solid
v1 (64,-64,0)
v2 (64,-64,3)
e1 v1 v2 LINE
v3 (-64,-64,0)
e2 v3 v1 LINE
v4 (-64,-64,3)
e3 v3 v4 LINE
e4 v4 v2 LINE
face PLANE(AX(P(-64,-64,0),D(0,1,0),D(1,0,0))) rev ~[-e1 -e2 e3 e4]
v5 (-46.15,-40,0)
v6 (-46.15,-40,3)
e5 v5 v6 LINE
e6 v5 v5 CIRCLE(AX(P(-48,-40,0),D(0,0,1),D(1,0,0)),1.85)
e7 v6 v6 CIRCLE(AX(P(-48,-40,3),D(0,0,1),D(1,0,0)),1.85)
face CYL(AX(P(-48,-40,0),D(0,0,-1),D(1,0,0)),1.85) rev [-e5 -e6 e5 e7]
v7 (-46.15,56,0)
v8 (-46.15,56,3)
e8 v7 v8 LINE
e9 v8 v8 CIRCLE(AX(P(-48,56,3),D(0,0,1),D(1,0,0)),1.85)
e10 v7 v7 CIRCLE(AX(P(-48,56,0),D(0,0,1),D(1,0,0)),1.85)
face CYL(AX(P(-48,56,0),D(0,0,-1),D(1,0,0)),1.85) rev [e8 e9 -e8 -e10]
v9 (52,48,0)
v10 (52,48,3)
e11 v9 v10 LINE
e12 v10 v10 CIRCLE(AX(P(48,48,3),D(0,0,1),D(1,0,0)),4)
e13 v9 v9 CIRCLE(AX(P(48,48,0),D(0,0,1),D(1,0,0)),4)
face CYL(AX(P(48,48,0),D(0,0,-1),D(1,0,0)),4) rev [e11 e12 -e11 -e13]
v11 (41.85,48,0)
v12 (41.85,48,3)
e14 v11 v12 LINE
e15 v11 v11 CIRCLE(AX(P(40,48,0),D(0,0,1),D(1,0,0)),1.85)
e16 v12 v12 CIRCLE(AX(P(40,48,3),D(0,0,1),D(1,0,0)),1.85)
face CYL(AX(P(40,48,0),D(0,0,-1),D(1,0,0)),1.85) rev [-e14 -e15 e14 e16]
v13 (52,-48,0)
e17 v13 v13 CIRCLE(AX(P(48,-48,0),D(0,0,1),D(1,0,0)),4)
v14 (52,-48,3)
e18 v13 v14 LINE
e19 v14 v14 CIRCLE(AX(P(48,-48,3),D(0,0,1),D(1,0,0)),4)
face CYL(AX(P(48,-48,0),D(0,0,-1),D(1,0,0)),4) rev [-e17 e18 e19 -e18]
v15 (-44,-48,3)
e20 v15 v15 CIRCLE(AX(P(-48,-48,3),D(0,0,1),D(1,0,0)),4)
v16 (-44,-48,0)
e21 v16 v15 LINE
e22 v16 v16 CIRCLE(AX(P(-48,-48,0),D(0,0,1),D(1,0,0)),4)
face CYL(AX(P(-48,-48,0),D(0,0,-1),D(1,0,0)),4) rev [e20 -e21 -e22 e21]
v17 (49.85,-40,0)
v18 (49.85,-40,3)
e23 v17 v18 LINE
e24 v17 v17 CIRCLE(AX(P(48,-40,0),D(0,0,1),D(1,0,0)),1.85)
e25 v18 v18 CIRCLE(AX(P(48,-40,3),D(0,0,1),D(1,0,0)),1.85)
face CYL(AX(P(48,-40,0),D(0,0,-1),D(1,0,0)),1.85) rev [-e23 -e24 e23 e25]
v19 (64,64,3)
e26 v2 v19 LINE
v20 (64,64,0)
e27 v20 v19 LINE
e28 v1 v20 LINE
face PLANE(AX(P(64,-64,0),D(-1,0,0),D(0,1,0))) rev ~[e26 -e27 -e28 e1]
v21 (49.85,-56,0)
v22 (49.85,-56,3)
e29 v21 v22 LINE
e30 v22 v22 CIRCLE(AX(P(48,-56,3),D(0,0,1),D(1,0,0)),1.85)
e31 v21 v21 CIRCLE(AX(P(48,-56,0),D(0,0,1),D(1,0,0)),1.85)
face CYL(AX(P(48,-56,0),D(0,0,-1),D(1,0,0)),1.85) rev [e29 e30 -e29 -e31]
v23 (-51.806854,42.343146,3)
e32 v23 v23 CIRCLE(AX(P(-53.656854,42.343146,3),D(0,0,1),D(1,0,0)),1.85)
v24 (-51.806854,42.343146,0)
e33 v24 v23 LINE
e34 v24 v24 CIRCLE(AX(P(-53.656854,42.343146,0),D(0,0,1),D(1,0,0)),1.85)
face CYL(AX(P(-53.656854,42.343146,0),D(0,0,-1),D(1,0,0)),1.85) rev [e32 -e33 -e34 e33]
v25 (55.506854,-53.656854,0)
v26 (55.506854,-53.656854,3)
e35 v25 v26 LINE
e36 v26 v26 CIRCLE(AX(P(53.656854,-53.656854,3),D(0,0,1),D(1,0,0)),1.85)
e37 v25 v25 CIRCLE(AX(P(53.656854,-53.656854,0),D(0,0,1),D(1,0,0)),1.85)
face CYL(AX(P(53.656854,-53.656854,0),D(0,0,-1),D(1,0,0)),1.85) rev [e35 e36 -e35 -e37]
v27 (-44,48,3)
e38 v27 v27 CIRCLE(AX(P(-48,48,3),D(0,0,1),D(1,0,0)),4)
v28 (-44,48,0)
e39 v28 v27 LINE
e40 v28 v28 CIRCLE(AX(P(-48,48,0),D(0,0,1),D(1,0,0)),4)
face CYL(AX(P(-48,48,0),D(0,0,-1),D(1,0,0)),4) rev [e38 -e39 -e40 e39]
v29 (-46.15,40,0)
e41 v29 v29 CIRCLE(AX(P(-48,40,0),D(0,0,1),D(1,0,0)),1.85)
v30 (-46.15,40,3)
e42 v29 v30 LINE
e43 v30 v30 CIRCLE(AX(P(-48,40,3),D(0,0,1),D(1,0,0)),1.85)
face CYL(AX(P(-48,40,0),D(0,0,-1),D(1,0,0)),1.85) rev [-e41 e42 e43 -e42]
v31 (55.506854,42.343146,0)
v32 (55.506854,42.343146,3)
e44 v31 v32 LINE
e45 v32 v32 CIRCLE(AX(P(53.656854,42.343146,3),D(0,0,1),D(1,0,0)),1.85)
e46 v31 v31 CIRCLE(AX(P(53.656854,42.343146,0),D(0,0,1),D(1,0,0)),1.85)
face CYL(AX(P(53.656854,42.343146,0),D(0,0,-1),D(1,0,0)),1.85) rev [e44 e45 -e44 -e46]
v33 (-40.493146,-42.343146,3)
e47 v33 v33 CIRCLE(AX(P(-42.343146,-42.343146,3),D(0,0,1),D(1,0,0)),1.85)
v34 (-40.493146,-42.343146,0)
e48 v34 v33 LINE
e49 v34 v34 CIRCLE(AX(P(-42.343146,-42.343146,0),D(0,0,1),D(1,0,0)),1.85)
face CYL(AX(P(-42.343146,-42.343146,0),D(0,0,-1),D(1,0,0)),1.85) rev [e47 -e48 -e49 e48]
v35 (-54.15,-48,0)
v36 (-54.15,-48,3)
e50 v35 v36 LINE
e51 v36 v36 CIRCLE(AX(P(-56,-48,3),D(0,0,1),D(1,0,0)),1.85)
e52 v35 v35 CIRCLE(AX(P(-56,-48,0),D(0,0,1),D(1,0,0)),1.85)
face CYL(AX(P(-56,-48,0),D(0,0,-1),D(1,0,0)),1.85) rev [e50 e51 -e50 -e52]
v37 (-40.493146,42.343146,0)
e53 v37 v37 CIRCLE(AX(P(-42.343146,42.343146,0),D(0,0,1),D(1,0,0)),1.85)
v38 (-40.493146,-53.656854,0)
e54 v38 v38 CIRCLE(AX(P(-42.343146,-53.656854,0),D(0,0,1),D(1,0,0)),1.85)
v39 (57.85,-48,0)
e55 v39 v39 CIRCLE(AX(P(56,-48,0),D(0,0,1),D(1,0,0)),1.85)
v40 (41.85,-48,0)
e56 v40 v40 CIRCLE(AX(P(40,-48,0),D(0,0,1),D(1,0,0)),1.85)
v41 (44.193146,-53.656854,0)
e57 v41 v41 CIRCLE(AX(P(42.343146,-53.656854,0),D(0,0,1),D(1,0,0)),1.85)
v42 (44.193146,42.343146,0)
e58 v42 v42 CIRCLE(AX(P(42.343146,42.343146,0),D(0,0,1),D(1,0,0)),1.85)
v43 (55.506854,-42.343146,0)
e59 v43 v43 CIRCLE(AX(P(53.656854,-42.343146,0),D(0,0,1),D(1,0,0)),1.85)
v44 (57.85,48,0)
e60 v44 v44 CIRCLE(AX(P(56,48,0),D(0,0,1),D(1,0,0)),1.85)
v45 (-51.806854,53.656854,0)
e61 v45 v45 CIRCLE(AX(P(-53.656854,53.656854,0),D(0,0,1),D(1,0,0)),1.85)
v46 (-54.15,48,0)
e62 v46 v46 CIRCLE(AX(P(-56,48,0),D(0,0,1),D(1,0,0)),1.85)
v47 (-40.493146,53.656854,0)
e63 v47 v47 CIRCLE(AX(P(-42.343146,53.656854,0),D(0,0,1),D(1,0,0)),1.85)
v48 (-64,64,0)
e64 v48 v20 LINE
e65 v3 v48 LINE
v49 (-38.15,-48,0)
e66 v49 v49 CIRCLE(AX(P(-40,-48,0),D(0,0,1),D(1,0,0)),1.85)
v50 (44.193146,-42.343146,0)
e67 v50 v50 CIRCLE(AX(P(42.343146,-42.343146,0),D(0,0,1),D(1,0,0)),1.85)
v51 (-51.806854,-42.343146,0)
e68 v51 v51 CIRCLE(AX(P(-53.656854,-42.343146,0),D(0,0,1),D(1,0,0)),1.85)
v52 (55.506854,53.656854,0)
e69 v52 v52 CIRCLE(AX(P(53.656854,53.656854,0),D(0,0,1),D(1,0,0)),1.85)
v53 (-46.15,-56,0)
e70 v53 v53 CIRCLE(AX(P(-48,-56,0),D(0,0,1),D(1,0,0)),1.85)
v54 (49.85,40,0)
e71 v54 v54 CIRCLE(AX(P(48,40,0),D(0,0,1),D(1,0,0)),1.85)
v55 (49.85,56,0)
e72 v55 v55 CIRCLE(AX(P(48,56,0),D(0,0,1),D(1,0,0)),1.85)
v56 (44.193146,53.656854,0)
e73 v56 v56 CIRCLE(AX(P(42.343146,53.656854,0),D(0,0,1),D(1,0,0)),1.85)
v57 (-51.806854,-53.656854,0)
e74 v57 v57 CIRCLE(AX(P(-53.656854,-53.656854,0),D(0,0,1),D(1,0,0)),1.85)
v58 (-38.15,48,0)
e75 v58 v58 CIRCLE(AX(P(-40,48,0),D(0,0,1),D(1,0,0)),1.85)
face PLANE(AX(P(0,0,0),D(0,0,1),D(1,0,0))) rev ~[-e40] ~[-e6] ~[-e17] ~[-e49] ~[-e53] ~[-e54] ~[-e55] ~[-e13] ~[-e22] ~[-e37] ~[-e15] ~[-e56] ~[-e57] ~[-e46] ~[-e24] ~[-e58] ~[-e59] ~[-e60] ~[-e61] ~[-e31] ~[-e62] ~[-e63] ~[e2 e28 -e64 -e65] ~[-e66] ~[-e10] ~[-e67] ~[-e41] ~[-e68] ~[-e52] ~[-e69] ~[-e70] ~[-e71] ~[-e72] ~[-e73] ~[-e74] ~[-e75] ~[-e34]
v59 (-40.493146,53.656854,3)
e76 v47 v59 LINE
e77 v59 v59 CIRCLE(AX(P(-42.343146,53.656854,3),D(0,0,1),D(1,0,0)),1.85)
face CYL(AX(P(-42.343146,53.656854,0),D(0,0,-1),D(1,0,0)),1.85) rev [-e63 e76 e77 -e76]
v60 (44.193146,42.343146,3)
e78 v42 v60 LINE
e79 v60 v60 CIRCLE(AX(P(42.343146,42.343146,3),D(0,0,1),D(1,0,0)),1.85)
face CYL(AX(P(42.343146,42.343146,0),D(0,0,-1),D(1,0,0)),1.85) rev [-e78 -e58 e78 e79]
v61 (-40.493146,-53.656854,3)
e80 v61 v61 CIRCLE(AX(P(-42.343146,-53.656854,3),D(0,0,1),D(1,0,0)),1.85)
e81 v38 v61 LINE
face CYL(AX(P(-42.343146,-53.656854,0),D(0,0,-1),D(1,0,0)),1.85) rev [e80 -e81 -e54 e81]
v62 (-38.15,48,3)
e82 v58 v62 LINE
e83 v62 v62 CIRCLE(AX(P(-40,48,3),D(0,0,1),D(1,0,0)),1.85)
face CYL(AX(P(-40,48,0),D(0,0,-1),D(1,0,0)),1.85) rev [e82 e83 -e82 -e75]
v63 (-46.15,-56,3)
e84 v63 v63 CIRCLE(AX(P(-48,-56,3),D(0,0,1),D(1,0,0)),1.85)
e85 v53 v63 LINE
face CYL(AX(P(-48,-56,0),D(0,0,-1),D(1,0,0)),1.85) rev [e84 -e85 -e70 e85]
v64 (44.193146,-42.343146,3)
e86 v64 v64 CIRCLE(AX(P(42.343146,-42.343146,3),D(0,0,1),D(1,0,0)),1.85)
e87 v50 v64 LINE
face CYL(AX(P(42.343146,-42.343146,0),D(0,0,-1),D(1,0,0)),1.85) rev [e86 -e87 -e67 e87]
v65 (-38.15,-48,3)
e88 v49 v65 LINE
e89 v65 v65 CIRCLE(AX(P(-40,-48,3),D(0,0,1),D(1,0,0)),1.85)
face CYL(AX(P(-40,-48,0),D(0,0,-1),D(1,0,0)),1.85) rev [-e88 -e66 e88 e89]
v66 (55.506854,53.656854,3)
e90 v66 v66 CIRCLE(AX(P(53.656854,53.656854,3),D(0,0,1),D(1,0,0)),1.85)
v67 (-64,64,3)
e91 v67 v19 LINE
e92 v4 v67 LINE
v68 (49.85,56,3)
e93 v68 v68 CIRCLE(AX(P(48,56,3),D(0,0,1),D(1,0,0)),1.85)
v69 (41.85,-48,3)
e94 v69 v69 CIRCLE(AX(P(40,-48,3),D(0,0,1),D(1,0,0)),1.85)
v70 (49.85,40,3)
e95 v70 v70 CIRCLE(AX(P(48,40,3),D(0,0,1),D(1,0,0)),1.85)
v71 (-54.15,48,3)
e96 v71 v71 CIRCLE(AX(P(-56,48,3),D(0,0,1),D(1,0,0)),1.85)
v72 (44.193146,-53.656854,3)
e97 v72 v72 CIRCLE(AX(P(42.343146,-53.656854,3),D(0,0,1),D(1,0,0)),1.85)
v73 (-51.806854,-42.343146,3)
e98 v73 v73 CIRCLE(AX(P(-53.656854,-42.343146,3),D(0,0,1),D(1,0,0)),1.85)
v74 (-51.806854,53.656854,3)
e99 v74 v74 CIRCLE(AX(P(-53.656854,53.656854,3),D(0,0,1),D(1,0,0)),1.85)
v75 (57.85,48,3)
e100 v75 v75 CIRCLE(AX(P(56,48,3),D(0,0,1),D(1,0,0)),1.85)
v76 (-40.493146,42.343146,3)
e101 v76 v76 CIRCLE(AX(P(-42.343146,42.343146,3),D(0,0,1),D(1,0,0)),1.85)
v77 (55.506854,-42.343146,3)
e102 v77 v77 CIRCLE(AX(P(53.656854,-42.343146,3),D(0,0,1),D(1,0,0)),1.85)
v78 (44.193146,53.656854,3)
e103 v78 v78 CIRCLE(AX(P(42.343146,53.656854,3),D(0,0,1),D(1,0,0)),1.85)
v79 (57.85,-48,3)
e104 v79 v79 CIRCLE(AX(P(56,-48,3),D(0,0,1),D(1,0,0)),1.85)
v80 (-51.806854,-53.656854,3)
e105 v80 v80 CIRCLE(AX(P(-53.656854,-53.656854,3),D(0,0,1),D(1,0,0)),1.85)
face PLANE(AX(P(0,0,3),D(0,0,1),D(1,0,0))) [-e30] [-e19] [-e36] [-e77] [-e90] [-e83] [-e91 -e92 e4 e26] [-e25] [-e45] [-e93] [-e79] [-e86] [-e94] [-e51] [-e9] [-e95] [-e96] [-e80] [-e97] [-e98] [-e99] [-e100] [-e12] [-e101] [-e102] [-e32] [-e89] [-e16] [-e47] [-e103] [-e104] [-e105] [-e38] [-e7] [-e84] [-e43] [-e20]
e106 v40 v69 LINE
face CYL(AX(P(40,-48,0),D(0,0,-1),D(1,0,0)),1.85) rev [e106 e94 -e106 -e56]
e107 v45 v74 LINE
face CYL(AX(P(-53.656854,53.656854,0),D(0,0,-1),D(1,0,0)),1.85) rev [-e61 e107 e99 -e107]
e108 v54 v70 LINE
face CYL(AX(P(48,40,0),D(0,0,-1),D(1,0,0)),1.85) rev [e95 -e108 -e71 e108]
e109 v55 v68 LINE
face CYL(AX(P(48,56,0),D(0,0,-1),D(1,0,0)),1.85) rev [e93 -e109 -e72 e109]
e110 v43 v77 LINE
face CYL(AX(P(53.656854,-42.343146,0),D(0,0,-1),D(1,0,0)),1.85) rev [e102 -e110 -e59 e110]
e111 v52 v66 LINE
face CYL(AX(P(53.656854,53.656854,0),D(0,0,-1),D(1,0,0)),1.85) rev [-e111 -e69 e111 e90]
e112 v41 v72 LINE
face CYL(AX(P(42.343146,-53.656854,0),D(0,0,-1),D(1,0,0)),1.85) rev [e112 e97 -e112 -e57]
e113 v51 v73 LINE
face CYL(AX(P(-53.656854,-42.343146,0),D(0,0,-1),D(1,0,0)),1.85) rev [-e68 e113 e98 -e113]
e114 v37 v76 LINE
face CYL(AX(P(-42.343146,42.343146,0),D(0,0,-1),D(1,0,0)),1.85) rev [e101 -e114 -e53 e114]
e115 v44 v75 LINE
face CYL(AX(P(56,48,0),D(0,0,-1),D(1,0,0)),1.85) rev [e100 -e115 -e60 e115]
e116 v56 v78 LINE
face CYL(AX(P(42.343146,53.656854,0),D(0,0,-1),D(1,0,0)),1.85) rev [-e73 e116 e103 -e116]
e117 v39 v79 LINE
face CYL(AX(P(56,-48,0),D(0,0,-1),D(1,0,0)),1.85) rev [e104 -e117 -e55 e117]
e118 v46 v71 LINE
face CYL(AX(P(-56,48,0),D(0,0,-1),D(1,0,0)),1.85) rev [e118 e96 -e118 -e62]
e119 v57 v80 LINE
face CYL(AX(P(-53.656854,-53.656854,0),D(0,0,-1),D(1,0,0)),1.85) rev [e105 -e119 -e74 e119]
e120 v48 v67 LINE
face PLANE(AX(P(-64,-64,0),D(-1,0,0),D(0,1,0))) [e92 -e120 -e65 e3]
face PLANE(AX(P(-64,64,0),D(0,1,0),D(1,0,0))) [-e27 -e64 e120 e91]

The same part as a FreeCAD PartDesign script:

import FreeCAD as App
import Part
import Sketcher
from FreeCAD import Vector
Q = App.Units.Quantity


def add_polygon(sketch, points):
    """Adds a closed chain of lines whose ends are joined by coincident constraints."""
    first, n = sketch.GeometryCount, len(points)
    for a, b in zip(points, points[1:] + points[:1]):
        sketch.addGeometry(Part.LineSegment(App.Vector(*a, 0), App.Vector(*b, 0)), False)
    for i in range(n):
        sketch.addConstraint(Sketcher.Constraint("Coincident", first + i, 2, first + (i + 1) % n, 1))

doc = App.newDocument("Part")
body = doc.addObject("PartDesign::Body", "Body")

# Sketch on XY plane
sketch1 = body.newObject("Sketcher::SketchObject", "Sketch")
sketch1.AttachmentSupport = (doc.getObject("XY_Plane"), [""])
sketch1.MapMode = "FlatFace"
add_polygon(sketch1, [(-64, 64), (-64, -64), (64, -64), (64, 64)])  # lines 0-3
sketch1.addGeometry(Part.Circle(Vector(-53.7, -53.7, 0), Vector(0, 0, 1), 1.9), False)  # 4
sketch1.addGeometry(Part.Circle(Vector(-48, -56, 0), Vector(0, 0, 1), 1.9), False)  # 5
sketch1.addGeometry(Part.Circle(Vector(-56, -48, 0), Vector(0, 0, 1), 1.9), False)  # 6
sketch1.addGeometry(Part.Circle(Vector(-48, -48, 0), Vector(0, 0, 1), 4), False)  # 7
sketch1.addGeometry(Part.Circle(Vector(-42.3, -53.7, 0), Vector(0, 0, 1), 1.9), False)  # 8
sketch1.addGeometry(Part.Circle(Vector(-40, -48, 0), Vector(0, 0, 1), 1.9), False)  # 9
sketch1.addGeometry(Part.Circle(Vector(-53.7, -42.3, 0), Vector(0, 0, 1), 1.9), False)  # 10
sketch1.addGeometry(Part.Circle(Vector(-48, -40, 0), Vector(0, 0, 1), 1.9), False)  # 11
sketch1.addGeometry(Part.Circle(Vector(-42.3, -42.3, 0), Vector(0, 0, 1), 1.9), False)  # 12
sketch1.addGeometry(Part.Circle(Vector(42.3, -53.7, 0), Vector(0, 0, 1), 1.9), False)  # 13
sketch1.addGeometry(Part.Circle(Vector(40, -48, 0), Vector(0, 0, 1), 1.9), False)  # 14
sketch1.addGeometry(Part.Circle(Vector(48, -56, 0), Vector(0, 0, 1), 1.9), False)  # 15
sketch1.addGeometry(Part.Circle(Vector(53.7, -53.7, 0), Vector(0, 0, 1), 1.9), False)  # 16
sketch1.addGeometry(Part.Circle(Vector(48, -48, 0), Vector(0, 0, 1), 4), False)  # 17
sketch1.addGeometry(Part.Circle(Vector(56, -48, 0), Vector(0, 0, 1), 1.9), False)  # 18
sketch1.addGeometry(Part.Circle(Vector(42.3, -42.3, 0), Vector(0, 0, 1), 1.9), False)  # 19
sketch1.addGeometry(Part.Circle(Vector(48, -40, 0), Vector(0, 0, 1), 1.9), False)  # 20
sketch1.addGeometry(Part.Circle(Vector(53.7, -42.3, 0), Vector(0, 0, 1), 1.9), False)  # 21
sketch1.addGeometry(Part.Circle(Vector(-53.7, 42.3, 0), Vector(0, 0, 1), 1.9), False)  # 22
sketch1.addGeometry(Part.Circle(Vector(-48, 40, 0), Vector(0, 0, 1), 1.9), False)  # 23
sketch1.addGeometry(Part.Circle(Vector(-42.3, 42.3, 0), Vector(0, 0, 1), 1.9), False)  # 24
sketch1.addGeometry(Part.Circle(Vector(-56, 48, 0), Vector(0, 0, 1), 1.9), False)  # 25
sketch1.addGeometry(Part.Circle(Vector(-48, 48, 0), Vector(0, 0, 1), 4), False)  # 26
sketch1.addGeometry(Part.Circle(Vector(-53.7, 53.7, 0), Vector(0, 0, 1), 1.9), False)  # 27
sketch1.addGeometry(Part.Circle(Vector(-48, 56, 0), Vector(0, 0, 1), 1.9), False)  # 28
sketch1.addGeometry(Part.Circle(Vector(-40, 48, 0), Vector(0, 0, 1), 1.9), False)  # 29
sketch1.addGeometry(Part.Circle(Vector(-42.3, 53.7, 0), Vector(0, 0, 1), 1.9), False)  # 30
sketch1.addGeometry(Part.Circle(Vector(42.3, 42.3, 0), Vector(0, 0, 1), 1.9), False)  # 31
sketch1.addGeometry(Part.Circle(Vector(48, 40, 0), Vector(0, 0, 1), 1.9), False)  # 32
sketch1.addGeometry(Part.Circle(Vector(53.7, 42.3, 0), Vector(0, 0, 1), 1.9), False)  # 33
sketch1.addGeometry(Part.Circle(Vector(40, 48, 0), Vector(0, 0, 1), 1.9), False)  # 34
sketch1.addGeometry(Part.Circle(Vector(42.3, 53.7, 0), Vector(0, 0, 1), 1.9), False)  # 35
sketch1.addGeometry(Part.Circle(Vector(48, 48, 0), Vector(0, 0, 1), 4), False)  # 36
sketch1.addGeometry(Part.Circle(Vector(56, 48, 0), Vector(0, 0, 1), 1.9), False)  # 37
sketch1.addGeometry(Part.Circle(Vector(48, 56, 0), Vector(0, 0, 1), 1.9), False)  # 38
sketch1.addGeometry(Part.Circle(Vector(53.7, 53.7, 0), Vector(0, 0, 1), 1.9), False)  # 39
sketch1.addConstraint(Sketcher.Constraint("Vertical", 0))
sketch1.addConstraint(Sketcher.Constraint("Horizontal", 1))
sketch1.addConstraint(Sketcher.Constraint("Vertical", 2))
sketch1.addConstraint(Sketcher.Constraint("Horizontal", 3))
sketch1.addConstraint(Sketcher.Constraint("Equal", 4, 5))
sketch1.addConstraint(Sketcher.Constraint("Equal", 5, 6))
sketch1.addConstraint(Sketcher.Constraint("Equal", 6, 8))
sketch1.addConstraint(Sketcher.Constraint("Equal", 8, 9))
sketch1.addConstraint(Sketcher.Constraint("Equal", 9, 10))
sketch1.addConstraint(Sketcher.Constraint("Equal", 10, 11))
sketch1.addConstraint(Sketcher.Constraint("Equal", 11, 12))
sketch1.addConstraint(Sketcher.Constraint("Equal", 12, 13))
sketch1.addConstraint(Sketcher.Constraint("Equal", 13, 14))
sketch1.addConstraint(Sketcher.Constraint("Equal", 14, 15))
sketch1.addConstraint(Sketcher.Constraint("Equal", 15, 16))
sketch1.addConstraint(Sketcher.Constraint("Equal", 7, 17))
sketch1.addConstraint(Sketcher.Constraint("Equal", 16, 18))
sketch1.addConstraint(Sketcher.Constraint("Equal", 18, 19))
sketch1.addConstraint(Sketcher.Constraint("Equal", 19, 20))
sketch1.addConstraint(Sketcher.Constraint("Equal", 20, 21))
sketch1.addConstraint(Sketcher.Constraint("Equal", 21, 22))
sketch1.addConstraint(Sketcher.Constraint("Equal", 22, 23))
sketch1.addConstraint(Sketcher.Constraint("Equal", 23, 24))
sketch1.addConstraint(Sketcher.Constraint("Equal", 24, 25))
sketch1.addConstraint(Sketcher.Constraint("Equal", 17, 26))
sketch1.addConstraint(Sketcher.Constraint("Equal", 25, 27))
sketch1.addConstraint(Sketcher.Constraint("Equal", 27, 28))
sketch1.addConstraint(Sketcher.Constraint("Equal", 28, 29))
sketch1.addConstraint(Sketcher.Constraint("Equal", 29, 30))
sketch1.addConstraint(Sketcher.Constraint("Equal", 30, 31))
sketch1.addConstraint(Sketcher.Constraint("Equal", 31, 32))
sketch1.addConstraint(Sketcher.Constraint("Equal", 32, 33))
sketch1.addConstraint(Sketcher.Constraint("Equal", 33, 34))
sketch1.addConstraint(Sketcher.Constraint("Equal", 34, 35))
sketch1.addConstraint(Sketcher.Constraint("Equal", 26, 36))
sketch1.addConstraint(Sketcher.Constraint("Equal", 35, 37))
sketch1.addConstraint(Sketcher.Constraint("Equal", 37, 38))
sketch1.addConstraint(Sketcher.Constraint("Equal", 38, 39))
sketch1.addConstraint(Sketcher.Constraint("Symmetric", 21, 3, 22, 3, -1, 1))
sketch1.addConstraint(Sketcher.Constraint("Symmetric", 20, 3, 23, 3, -1, 1))
sketch1.addConstraint(Sketcher.Constraint("Symmetric", 19, 3, 24, 3, -1, 1))
sketch1.addConstraint(Sketcher.Constraint("Symmetric", 18, 3, 25, 3, -1, 1))
sketch1.addConstraint(Sketcher.Constraint("Symmetric", 17, 3, 26, 3, -1, 1))
sketch1.addConstraint(Sketcher.Constraint("Symmetric", 16, 3, 27, 3, -1, 1))
sketch1.addConstraint(Sketcher.Constraint("Symmetric", 15, 3, 28, 3, -1, 1))
sketch1.addConstraint(Sketcher.Constraint("Symmetric", 14, 3, 29, 3, -1, 1))
sketch1.addConstraint(Sketcher.Constraint("Symmetric", 13, 3, 30, 3, -1, 1))
sketch1.addConstraint(Sketcher.Constraint("Symmetric", 12, 3, 31, 3, -1, 1))
sketch1.addConstraint(Sketcher.Constraint("Symmetric", 11, 3, 32, 3, -1, 1))
sketch1.addConstraint(Sketcher.Constraint("Symmetric", 10, 3, 33, 3, -1, 1))
sketch1.addConstraint(Sketcher.Constraint("Symmetric", 9, 3, 34, 3, -1, 1))
sketch1.addConstraint(Sketcher.Constraint("Symmetric", 8, 3, 35, 3, -1, 1))
sketch1.addConstraint(Sketcher.Constraint("Symmetric", 7, 3, 36, 3, -1, 1))
sketch1.addConstraint(Sketcher.Constraint("Symmetric", 6, 3, 37, 3, -1, 1))
sketch1.addConstraint(Sketcher.Constraint("Symmetric", 5, 3, 38, 3, -1, 1))
sketch1.addConstraint(Sketcher.Constraint("Symmetric", 4, 3, 39, 3, -1, 1))
sketch1.addConstraint(Sketcher.Constraint("Symmetric", 0, 2, 2, 2, -1, 1))
sketch1.addConstraint(Sketcher.Constraint("Symmetric", 8, 3, 13, 3, -2))
sketch1.addConstraint(Sketcher.Constraint("Symmetric", 9, 3, 14, 3, -2))
sketch1.addConstraint(Sketcher.Constraint("Symmetric", 5, 3, 15, 3, -2))
sketch1.addConstraint(Sketcher.Constraint("Symmetric", 4, 3, 16, 3, -2))
sketch1.addConstraint(Sketcher.Constraint("Symmetric", 7, 3, 17, 3, -2))
sketch1.addConstraint(Sketcher.Constraint("Symmetric", 6, 3, 18, 3, -2))
sketch1.addConstraint(Sketcher.Constraint("Symmetric", 12, 3, 19, 3, -2))
sketch1.addConstraint(Sketcher.Constraint("Symmetric", 11, 3, 20, 3, -2))
sketch1.addConstraint(Sketcher.Constraint("Symmetric", 10, 3, 21, 3, -2))
sketch1.addConstraint(Sketcher.Constraint("Horizontal", 6, 3, 7, 3))
sketch1.addConstraint(Sketcher.Constraint("Horizontal", 4, 3, 8, 3))
sketch1.addConstraint(Sketcher.Constraint("Horizontal", 7, 3, 9, 3))
sketch1.addConstraint(Sketcher.Constraint("Horizontal", 10, 3, 12, 3))
sketch1.addConstraint(Sketcher.Constraint("Vertical", 5, 3, 7, 3))
sketch1.addConstraint(Sketcher.Constraint("Vertical", 4, 3, 10, 3))
sketch1.addConstraint(Sketcher.Constraint("Vertical", 7, 3, 11, 3))
sketch1.addConstraint(Sketcher.Constraint("Vertical", 8, 3, 12, 3))
sketch1.addConstraint(Sketcher.Constraint("Equal", 3, 0))
sketch1.addConstraint(Sketcher.Constraint("Diameter", 7, Q("8 mm")))
sketch1.addConstraint(Sketcher.Constraint("Diameter", 4, Q("3.7 mm")))
sketch1.addConstraint(Sketcher.Constraint("DistanceX", 1, 1, 1, 2, Q("128 mm")))
sketch1.addConstraint(Sketcher.Constraint("DistanceX", 5, 3, -1, 1, Q("48 mm")))
sketch1.addConstraint(Sketcher.Constraint("DistanceY", 5, 3, -1, 1, Q("56 mm")))
sketch1.addConstraint(Sketcher.Constraint("DistanceX", 6, 3, -1, 1, Q("56 mm")))
sketch1.addConstraint(Sketcher.Constraint("DistanceY", 6, 3, -1, 1, Q("48 mm")))
sketch1.addConstraint(Sketcher.Constraint("DistanceX", 9, 3, -1, 1, Q("40 mm")))
sketch1.addConstraint(Sketcher.Constraint("DistanceY", 11, 3, -1, 1, Q("40 mm")))
sketch1.addConstraint(Sketcher.Constraint("DistanceX", 8, 3, 16, 3, Q("96 mm")))
sketch1.addConstraint(Sketcher.Constraint("DistanceX", 4, 3, 8, 3, Q("11.313708 mm")))
sketch1.addConstraint(Sketcher.Constraint("DistanceY", 4, 3, 10, 3, Q("11.313708 mm")))
sketch1.addConstraint(Sketcher.Constraint("DistanceY", 10, 3, 22, 3, Q("84.686292 mm")))
pad1 = body.newObject("PartDesign::Pad", "Pad")
pad1.Profile = sketch1
pad1.Length = 3

doc.recompute()
